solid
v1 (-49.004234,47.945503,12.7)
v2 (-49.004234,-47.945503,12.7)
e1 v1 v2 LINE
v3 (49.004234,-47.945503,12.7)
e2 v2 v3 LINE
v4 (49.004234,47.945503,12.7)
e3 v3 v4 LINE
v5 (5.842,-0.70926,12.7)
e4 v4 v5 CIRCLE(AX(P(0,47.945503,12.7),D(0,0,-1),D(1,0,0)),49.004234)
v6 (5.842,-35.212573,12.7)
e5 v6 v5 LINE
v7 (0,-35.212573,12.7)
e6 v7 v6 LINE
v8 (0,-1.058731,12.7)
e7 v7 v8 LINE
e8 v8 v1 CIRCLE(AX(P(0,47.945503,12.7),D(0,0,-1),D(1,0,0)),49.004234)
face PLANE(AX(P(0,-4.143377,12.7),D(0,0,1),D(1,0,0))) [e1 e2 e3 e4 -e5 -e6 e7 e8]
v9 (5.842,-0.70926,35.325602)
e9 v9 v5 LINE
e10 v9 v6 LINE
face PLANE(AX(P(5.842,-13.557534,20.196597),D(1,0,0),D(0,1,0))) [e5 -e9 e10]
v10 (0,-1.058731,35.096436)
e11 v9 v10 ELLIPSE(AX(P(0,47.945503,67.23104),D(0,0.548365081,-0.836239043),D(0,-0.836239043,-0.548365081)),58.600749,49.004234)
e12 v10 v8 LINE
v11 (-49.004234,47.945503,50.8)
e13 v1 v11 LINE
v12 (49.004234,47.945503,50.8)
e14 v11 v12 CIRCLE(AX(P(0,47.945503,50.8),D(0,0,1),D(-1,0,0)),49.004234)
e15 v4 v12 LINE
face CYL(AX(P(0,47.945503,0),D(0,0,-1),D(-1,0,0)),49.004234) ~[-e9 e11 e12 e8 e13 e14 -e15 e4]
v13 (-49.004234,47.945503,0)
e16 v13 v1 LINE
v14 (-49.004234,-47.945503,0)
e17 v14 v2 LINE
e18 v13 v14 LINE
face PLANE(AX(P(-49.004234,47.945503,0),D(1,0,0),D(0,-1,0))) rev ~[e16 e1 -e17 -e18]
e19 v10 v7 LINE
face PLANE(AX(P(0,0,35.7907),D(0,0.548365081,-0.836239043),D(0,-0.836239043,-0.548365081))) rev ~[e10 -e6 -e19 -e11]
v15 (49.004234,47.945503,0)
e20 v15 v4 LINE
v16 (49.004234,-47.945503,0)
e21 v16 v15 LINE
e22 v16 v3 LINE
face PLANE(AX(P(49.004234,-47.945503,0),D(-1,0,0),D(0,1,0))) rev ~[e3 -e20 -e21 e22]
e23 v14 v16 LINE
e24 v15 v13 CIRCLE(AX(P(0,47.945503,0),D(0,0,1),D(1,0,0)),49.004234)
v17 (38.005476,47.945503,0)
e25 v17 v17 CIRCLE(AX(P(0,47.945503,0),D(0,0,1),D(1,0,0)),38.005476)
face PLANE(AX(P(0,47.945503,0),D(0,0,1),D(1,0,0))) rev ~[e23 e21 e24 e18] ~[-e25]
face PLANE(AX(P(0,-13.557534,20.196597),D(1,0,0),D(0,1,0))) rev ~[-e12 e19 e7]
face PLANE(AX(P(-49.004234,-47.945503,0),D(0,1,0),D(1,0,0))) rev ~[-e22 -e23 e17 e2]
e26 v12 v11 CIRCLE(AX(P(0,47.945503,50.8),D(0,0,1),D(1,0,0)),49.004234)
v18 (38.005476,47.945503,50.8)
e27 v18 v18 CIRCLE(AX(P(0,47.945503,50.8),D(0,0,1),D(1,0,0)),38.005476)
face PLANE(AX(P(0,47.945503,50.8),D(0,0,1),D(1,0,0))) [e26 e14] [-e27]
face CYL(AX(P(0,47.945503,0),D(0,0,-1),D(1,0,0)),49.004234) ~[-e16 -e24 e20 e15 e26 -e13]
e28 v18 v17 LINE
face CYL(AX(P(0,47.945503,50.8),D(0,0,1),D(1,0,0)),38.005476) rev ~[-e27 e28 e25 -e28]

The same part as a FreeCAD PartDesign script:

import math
import FreeCAD as App
import Part
import Sketcher

V = App.Vector
Q = App.Units.Quantity

doc = App.newDocument("Part")
body = doc.addObject("PartDesign::Body", "Body")

sketch1 = body.newObject("Sketcher::SketchObject", "Sketch")
sketch1.AttachmentSupport = (doc.getObject("XY_Plane"), [""])
sketch1.MapMode = "FlatFace"
sketch1.addGeometry(Part.LineSegment(V(-49, -48, 0), V(49, -48, 0)), False)
sketch1.addGeometry(Part.LineSegment(V(49, -48, 0), V(49, 48, 0)), False)
sketch1.addGeometry(Part.ArcOfCircle(Part.Circle(V(0, 48, 0), V(0, 0, 1), 49), math.radians(-180), math.radians(0)), False)
sketch1.addGeometry(Part.LineSegment(V(-49, 48, 0), V(-49, -48, 0)), False)
sketch1.addConstraint(Sketcher.Constraint("Coincident", 0, 2, 1, 1))
sketch1.addConstraint(Sketcher.Constraint("Tangent", 1, 2, 2, 2))
sketch1.addConstraint(Sketcher.Constraint("Tangent", 2, 1, 3, 1))
sketch1.addConstraint(Sketcher.Constraint("Coincident", 3, 2, 0, 1))
sketch1.addConstraint(Sketcher.Constraint("Horizontal", 0))
sketch1.addConstraint(Sketcher.Constraint("Vertical", 1))
sketch1.addConstraint(Sketcher.Constraint("Vertical", 3))
sketch1.addConstraint(Sketcher.Constraint("Symmetric", 0, 2, 2, 1, -1, 1))
sketch1.addConstraint(Sketcher.Constraint("Radius", 2, Q("49.004234 mm")))
sketch1.addConstraint(Sketcher.Constraint("DistanceY", 1, 1, 1, 2, Q("95.891006 mm")))
pad1 = body.newObject("PartDesign::Pad", "Pad")
pad1.Profile = sketch1
pad1.Length = Q("0.5 in")

sketch2 = body.newObject("Sketcher::SketchObject", "Sketch001")
sketch2.AttachmentSupport = (doc.getObject("XY_Plane"), [""])
sketch2.MapMode = "FlatFace"
sketch2.addGeometry(Part.ArcOfCircle(Part.Circle(V(0, 48, 0), V(0, 0, 1), 49), math.radians(-180), math.radians(0)), False)
sketch2.addGeometry(Part.ArcOfCircle(Part.Circle(V(0, 48, 0), V(0, 0, 1), 49), math.radians(0), math.radians(180)), False)
sketch2.addConstraint(Sketcher.Constraint("Tangent", 0, 1, 1, 2))
sketch2.addConstraint(Sketcher.Constraint("Coincident", 1, 1, 0, 2))
sketch2.addConstraint(Sketcher.Constraint("Symmetric", 0, 1, 1, 1, -2))
sketch2.addConstraint(Sketcher.Constraint("Horizontal", 1, 3, 0, 1))
sketch2.addConstraint(Sketcher.Constraint("Radius", 0, Q("49.004234 mm")))
sketch2.addConstraint(Sketcher.Constraint("DistanceY", -1, 1, 0, 3, Q("47.945503 mm")))
pad2 = body.newObject("PartDesign::Pad", "Pad001")
pad2.Profile = sketch2
pad2.Length = Q("2 in")

sketch3 = body.newObject("Sketcher::SketchObject", "Sketch002")
sketch3.AttachmentSupport = (doc.getObject("XY_Plane"), [""])
sketch3.MapMode = "FlatFace"
sketch3.AttachmentOffset = App.Placement(V(0, 0, 2 * 25.4), App.Rotation())
sketch3.addGeometry(Part.Circle(V(0, 48, 0), V(0, 0, 1), 38), False)
sketch3.addConstraint(Sketcher.Constraint("PointOnObject", 0, 3, -2))
sketch3.addConstraint(Sketcher.Constraint("Diameter", 0, Q("76.010952 mm")))
sketch3.addConstraint(Sketcher.Constraint("DistanceY", -1, 1, 0, 3, Q("47.945503 mm")))
pocket1 = body.newObject("PartDesign::Pocket", "Pocket")
pocket1.Profile = sketch3
pocket1.Type = "ThroughAll"

sketch4 = body.newObject("Sketcher::SketchObject", "Sketch003")
sketch4.AttachmentSupport = (doc.getObject("YZ_Plane"), [""])
sketch4.MapMode = "FlatFace"
sketch4.addGeometry(Part.LineSegment(V(0, 36, 0), V(-35, 13, 0)), False)
sketch4.addGeometry(Part.LineSegment(V(-35, 13, 0), V(0, 13, 0)), False)
sketch4.addGeometry(Part.LineSegment(V(0, 13, 0), V(0, 36, 0)), False)
sketch4.addConstraint(Sketcher.Constraint("Coincident", 0, 2, 1, 1))
sketch4.addConstraint(Sketcher.Constraint("Coincident", 1, 2, 2, 1))
sketch4.addConstraint(Sketcher.Constraint("Coincident", 2, 2, 0, 1))
sketch4.addConstraint(Sketcher.Constraint("Horizontal", 1))
sketch4.addConstraint(Sketcher.Constraint("Vertical", 2))
sketch4.addConstraint(Sketcher.Constraint("PointOnObject", 1, 2, -2))
sketch4.addConstraint(Sketcher.Constraint("DistanceY", -1, 1, 0, 2, Q("0.5 in")))
sketch4.addConstraint(Sketcher.Constraint("DistanceY", 2, 1, 2, 2, Q("23.0907 mm")))
sketch4.addConstraint(Sketcher.Constraint("Distance", 0, Q("42.108262 mm")))
pad3 = body.newObject("PartDesign::Pad", "Pad002")
pad3.Profile = sketch4
pad3.Length = Q("0.23 in")

doc.recompute()
